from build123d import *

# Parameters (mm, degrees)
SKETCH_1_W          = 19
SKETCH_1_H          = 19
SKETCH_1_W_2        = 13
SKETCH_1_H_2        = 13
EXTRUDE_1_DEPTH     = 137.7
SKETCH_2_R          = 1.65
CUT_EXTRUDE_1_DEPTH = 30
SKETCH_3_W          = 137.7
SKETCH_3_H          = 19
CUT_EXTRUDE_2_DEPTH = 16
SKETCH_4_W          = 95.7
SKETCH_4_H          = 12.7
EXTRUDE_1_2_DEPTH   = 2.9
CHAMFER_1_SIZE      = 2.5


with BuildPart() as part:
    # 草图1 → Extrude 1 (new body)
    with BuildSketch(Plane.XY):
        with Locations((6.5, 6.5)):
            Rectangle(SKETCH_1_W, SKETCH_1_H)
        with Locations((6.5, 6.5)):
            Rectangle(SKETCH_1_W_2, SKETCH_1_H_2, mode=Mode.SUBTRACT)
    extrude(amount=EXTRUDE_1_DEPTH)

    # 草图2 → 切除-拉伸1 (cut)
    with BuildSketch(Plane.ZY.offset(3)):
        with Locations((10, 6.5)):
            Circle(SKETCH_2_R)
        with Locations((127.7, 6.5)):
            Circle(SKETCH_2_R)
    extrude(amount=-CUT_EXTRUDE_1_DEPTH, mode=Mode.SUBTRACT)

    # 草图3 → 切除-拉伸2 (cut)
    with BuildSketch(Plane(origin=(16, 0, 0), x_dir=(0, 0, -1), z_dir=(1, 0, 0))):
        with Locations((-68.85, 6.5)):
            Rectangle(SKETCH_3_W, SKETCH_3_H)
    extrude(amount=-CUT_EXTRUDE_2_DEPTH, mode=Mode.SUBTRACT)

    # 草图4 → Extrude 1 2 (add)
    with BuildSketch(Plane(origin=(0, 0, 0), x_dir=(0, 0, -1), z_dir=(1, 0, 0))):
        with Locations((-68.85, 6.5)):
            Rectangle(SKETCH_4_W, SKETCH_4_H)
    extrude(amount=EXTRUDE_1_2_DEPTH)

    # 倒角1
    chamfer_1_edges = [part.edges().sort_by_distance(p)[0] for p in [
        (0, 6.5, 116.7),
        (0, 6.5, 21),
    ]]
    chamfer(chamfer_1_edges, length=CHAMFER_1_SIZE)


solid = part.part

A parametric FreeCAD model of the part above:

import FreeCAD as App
import Part
import Sketcher


def edges_at(feature, points):
    """Names of the edges that pass closest to the given points."""
    edges = feature.Shape.Edges
    near = lambda p: min(range(len(edges)), key=lambda i: edges[i].distToShape(Part.Vertex(*p))[0])
    return sorted({f"Edge{near(p) + 1}" for p in points})


def add_polygon(sketch, points):
    """Adds a closed chain of lines whose ends are joined by coincident constraints."""
    first, n = sketch.GeometryCount, len(points)
    for a, b in zip(points, points[1:] + points[:1]):
        sketch.addGeometry(Part.LineSegment(App.Vector(*a, 0), App.Vector(*b, 0)), False)
    for i in range(n):
        sketch.addConstraint(Sketcher.Constraint("Coincident", first + i, 2, first + (i + 1) % n, 1))

doc = App.newDocument("Part")
body = doc.addObject("PartDesign::Body", "Body")

# Sketch on XY plane
sketch1 = body.newObject("Sketcher::SketchObject", "Sketch")
sketch1.AttachmentSupport = (doc.getObject("XY_Plane"), [""])
sketch1.MapMode = "FlatFace"
add_polygon(sketch1, [(-3, 16), (-3, -3), (16, -3), (16, 16)])  # lines 0-3
add_polygon(sketch1, [(13, 0), (0, 0), (0, 13), (13, 13)])  # lines 4-7
sketch1.addConstraint(Sketcher.Constraint("Vertical", 0))
sketch1.addConstraint(Sketcher.Constraint("Horizontal", 1))
sketch1.addConstraint(Sketcher.Constraint("Vertical", 2))
sketch1.addConstraint(Sketcher.Constraint("Horizontal", 3))
sketch1.addConstraint(Sketcher.Constraint("Horizontal", 4))
sketch1.addConstraint(Sketcher.Constraint("Vertical", 5))
sketch1.addConstraint(Sketcher.Constraint("Horizontal", 6))
sketch1.addConstraint(Sketcher.Constraint("Vertical", 7))
sketch1.addConstraint(Sketcher.Constraint("Coincident", 4, 2, -1, 1))
sketch1.addConstraint(Sketcher.Constraint("Equal", 3, 0))
sketch1.addConstraint(Sketcher.Constraint("Equal", 6, 5))
sketch1.addConstraint(Sketcher.Constraint("DistanceX", 1, 1, 1, 2, 19.0))
sketch1.addConstraint(Sketcher.Constraint("DistanceX", 4, 2, 4, 1, 13.0))
sketch1.addConstraint(Sketcher.Constraint("DistanceX", 0, 2, -1, 1, 3.0))
sketch1.addConstraint(Sketcher.Constraint("DistanceY", 0, 2, -1, 1, 3.0))
pad1 = body.newObject("PartDesign::Pad", "Pad")
pad1.Profile = sketch1
pad1.Length = 137.7

# Sketch on YZ plane
sketch2 = body.newObject("Sketcher::SketchObject", "Sketch001")
sketch2.AttachmentSupport = (doc.getObject("YZ_Plane"), [""])
sketch2.MapMode = "FlatFace"
sketch2.AttachmentOffset = App.Placement(App.Vector(0, 0, -3), App.Rotation())
sketch2.addGeometry(Part.Circle(App.Vector(6.5, 10, 0), App.Vector(0, 0, 1), 1.65), False)
sketch2.addGeometry(Part.Circle(App.Vector(6.5, 127.7, 0), App.Vector(0, 0, 1), 1.65), False)
sketch2.addConstraint(Sketcher.Constraint("Equal", 0, 1))
sketch2.addConstraint(Sketcher.Constraint("Vertical", 0, 3, 1, 3))
sketch2.addConstraint(Sketcher.Constraint("Diameter", 0, 3.3))
sketch2.addConstraint(Sketcher.Constraint("DistanceY", -1, 1, 0, 3, 10.0))
sketch2.addConstraint(Sketcher.Constraint("DistanceX", -1, 1, 0, 3, 6.5))
sketch2.addConstraint(Sketcher.Constraint("DistanceY", -1, 1, 1, 3, 127.7))
pocket1 = body.newObject("PartDesign::Pocket", "Pocket")
pocket1.Profile = sketch2
pocket1.Length = 30
pocket1.Reversed = True

# Sketch on YZ plane
sketch3 = body.newObject("Sketcher::SketchObject", "Sketch002")
sketch3.AttachmentSupport = (doc.getObject("YZ_Plane"), [""])
sketch3.MapMode = "FlatFace"
sketch3.AttachmentOffset = App.Placement(App.Vector(0, 0, 16), App.Rotation())
add_polygon(sketch3, [(16, 137.7), (-3, 137.7), (-3, 0), (16, 0)])  # lines 0-3
sketch3.addConstraint(Sketcher.Constraint("Horizontal", 0))
sketch3.addConstraint(Sketcher.Constraint("Vertical", 1))
sketch3.addConstraint(Sketcher.Constraint("Horizontal", 2))
sketch3.addConstraint(Sketcher.Constraint("Vertical", 3))
sketch3.addConstraint(Sketcher.Constraint("PointOnObject", 1, 2, -1))
sketch3.addConstraint(Sketcher.Constraint("DistanceX", 0, 2, 0, 1, 19.0))
sketch3.addConstraint(Sketcher.Constraint("DistanceY", 1, 2, 1, 1, 137.7))
sketch3.addConstraint(Sketcher.Constraint("DistanceX", 0, 2, -1, 1, 3.0))
pocket2 = body.newObject("PartDesign::Pocket", "Pocket001")
pocket2.Profile = sketch3
pocket2.Length = 16

# Sketch on YZ plane
sketch4 = body.newObject("Sketcher::SketchObject", "Sketch003")
sketch4.AttachmentSupport = (doc.getObject("YZ_Plane"), [""])
sketch4.MapMode = "FlatFace"
add_polygon(sketch4, [(12.85, 116.7), (0.15, 116.7), (0.15, 21), (12.85, 21)])  # lines 0-3
sketch4.addConstraint(Sketcher.Constraint("Horizontal", 0))
sketch4.addConstraint(Sketcher.Constraint("Vertical", 1))
sketch4.addConstraint(Sketcher.Constraint("Horizontal", 2))
sketch4.addConstraint(Sketcher.Constraint("Vertical", 3))
sketch4.addConstraint(Sketcher.Constraint("DistanceX", 0, 2, 0, 1, 12.7))
sketch4.addConstraint(Sketcher.Constraint("DistanceY", 1, 2, 1, 1, 95.7))
sketch4.addConstraint(Sketcher.Constraint("DistanceY", -1, 1, 1, 2, 21.0))
sketch4.addConstraint(Sketcher.Constraint("DistanceX", -1, 1, 0, 2, 0.15))
pad2 = body.newObject("PartDesign::Pad", "Pad001")
pad2.Profile = sketch4
pad2.Length = 2.9
doc.recompute()

chamfer = body.newObject("PartDesign::Chamfer", "Chamfer")
chamfer.Base = (pad2, edges_at(pad2, [(0, 6.5, 116.7), (0, 6.5, 21)]))
chamfer.Size = 2.5

doc.recompute()
